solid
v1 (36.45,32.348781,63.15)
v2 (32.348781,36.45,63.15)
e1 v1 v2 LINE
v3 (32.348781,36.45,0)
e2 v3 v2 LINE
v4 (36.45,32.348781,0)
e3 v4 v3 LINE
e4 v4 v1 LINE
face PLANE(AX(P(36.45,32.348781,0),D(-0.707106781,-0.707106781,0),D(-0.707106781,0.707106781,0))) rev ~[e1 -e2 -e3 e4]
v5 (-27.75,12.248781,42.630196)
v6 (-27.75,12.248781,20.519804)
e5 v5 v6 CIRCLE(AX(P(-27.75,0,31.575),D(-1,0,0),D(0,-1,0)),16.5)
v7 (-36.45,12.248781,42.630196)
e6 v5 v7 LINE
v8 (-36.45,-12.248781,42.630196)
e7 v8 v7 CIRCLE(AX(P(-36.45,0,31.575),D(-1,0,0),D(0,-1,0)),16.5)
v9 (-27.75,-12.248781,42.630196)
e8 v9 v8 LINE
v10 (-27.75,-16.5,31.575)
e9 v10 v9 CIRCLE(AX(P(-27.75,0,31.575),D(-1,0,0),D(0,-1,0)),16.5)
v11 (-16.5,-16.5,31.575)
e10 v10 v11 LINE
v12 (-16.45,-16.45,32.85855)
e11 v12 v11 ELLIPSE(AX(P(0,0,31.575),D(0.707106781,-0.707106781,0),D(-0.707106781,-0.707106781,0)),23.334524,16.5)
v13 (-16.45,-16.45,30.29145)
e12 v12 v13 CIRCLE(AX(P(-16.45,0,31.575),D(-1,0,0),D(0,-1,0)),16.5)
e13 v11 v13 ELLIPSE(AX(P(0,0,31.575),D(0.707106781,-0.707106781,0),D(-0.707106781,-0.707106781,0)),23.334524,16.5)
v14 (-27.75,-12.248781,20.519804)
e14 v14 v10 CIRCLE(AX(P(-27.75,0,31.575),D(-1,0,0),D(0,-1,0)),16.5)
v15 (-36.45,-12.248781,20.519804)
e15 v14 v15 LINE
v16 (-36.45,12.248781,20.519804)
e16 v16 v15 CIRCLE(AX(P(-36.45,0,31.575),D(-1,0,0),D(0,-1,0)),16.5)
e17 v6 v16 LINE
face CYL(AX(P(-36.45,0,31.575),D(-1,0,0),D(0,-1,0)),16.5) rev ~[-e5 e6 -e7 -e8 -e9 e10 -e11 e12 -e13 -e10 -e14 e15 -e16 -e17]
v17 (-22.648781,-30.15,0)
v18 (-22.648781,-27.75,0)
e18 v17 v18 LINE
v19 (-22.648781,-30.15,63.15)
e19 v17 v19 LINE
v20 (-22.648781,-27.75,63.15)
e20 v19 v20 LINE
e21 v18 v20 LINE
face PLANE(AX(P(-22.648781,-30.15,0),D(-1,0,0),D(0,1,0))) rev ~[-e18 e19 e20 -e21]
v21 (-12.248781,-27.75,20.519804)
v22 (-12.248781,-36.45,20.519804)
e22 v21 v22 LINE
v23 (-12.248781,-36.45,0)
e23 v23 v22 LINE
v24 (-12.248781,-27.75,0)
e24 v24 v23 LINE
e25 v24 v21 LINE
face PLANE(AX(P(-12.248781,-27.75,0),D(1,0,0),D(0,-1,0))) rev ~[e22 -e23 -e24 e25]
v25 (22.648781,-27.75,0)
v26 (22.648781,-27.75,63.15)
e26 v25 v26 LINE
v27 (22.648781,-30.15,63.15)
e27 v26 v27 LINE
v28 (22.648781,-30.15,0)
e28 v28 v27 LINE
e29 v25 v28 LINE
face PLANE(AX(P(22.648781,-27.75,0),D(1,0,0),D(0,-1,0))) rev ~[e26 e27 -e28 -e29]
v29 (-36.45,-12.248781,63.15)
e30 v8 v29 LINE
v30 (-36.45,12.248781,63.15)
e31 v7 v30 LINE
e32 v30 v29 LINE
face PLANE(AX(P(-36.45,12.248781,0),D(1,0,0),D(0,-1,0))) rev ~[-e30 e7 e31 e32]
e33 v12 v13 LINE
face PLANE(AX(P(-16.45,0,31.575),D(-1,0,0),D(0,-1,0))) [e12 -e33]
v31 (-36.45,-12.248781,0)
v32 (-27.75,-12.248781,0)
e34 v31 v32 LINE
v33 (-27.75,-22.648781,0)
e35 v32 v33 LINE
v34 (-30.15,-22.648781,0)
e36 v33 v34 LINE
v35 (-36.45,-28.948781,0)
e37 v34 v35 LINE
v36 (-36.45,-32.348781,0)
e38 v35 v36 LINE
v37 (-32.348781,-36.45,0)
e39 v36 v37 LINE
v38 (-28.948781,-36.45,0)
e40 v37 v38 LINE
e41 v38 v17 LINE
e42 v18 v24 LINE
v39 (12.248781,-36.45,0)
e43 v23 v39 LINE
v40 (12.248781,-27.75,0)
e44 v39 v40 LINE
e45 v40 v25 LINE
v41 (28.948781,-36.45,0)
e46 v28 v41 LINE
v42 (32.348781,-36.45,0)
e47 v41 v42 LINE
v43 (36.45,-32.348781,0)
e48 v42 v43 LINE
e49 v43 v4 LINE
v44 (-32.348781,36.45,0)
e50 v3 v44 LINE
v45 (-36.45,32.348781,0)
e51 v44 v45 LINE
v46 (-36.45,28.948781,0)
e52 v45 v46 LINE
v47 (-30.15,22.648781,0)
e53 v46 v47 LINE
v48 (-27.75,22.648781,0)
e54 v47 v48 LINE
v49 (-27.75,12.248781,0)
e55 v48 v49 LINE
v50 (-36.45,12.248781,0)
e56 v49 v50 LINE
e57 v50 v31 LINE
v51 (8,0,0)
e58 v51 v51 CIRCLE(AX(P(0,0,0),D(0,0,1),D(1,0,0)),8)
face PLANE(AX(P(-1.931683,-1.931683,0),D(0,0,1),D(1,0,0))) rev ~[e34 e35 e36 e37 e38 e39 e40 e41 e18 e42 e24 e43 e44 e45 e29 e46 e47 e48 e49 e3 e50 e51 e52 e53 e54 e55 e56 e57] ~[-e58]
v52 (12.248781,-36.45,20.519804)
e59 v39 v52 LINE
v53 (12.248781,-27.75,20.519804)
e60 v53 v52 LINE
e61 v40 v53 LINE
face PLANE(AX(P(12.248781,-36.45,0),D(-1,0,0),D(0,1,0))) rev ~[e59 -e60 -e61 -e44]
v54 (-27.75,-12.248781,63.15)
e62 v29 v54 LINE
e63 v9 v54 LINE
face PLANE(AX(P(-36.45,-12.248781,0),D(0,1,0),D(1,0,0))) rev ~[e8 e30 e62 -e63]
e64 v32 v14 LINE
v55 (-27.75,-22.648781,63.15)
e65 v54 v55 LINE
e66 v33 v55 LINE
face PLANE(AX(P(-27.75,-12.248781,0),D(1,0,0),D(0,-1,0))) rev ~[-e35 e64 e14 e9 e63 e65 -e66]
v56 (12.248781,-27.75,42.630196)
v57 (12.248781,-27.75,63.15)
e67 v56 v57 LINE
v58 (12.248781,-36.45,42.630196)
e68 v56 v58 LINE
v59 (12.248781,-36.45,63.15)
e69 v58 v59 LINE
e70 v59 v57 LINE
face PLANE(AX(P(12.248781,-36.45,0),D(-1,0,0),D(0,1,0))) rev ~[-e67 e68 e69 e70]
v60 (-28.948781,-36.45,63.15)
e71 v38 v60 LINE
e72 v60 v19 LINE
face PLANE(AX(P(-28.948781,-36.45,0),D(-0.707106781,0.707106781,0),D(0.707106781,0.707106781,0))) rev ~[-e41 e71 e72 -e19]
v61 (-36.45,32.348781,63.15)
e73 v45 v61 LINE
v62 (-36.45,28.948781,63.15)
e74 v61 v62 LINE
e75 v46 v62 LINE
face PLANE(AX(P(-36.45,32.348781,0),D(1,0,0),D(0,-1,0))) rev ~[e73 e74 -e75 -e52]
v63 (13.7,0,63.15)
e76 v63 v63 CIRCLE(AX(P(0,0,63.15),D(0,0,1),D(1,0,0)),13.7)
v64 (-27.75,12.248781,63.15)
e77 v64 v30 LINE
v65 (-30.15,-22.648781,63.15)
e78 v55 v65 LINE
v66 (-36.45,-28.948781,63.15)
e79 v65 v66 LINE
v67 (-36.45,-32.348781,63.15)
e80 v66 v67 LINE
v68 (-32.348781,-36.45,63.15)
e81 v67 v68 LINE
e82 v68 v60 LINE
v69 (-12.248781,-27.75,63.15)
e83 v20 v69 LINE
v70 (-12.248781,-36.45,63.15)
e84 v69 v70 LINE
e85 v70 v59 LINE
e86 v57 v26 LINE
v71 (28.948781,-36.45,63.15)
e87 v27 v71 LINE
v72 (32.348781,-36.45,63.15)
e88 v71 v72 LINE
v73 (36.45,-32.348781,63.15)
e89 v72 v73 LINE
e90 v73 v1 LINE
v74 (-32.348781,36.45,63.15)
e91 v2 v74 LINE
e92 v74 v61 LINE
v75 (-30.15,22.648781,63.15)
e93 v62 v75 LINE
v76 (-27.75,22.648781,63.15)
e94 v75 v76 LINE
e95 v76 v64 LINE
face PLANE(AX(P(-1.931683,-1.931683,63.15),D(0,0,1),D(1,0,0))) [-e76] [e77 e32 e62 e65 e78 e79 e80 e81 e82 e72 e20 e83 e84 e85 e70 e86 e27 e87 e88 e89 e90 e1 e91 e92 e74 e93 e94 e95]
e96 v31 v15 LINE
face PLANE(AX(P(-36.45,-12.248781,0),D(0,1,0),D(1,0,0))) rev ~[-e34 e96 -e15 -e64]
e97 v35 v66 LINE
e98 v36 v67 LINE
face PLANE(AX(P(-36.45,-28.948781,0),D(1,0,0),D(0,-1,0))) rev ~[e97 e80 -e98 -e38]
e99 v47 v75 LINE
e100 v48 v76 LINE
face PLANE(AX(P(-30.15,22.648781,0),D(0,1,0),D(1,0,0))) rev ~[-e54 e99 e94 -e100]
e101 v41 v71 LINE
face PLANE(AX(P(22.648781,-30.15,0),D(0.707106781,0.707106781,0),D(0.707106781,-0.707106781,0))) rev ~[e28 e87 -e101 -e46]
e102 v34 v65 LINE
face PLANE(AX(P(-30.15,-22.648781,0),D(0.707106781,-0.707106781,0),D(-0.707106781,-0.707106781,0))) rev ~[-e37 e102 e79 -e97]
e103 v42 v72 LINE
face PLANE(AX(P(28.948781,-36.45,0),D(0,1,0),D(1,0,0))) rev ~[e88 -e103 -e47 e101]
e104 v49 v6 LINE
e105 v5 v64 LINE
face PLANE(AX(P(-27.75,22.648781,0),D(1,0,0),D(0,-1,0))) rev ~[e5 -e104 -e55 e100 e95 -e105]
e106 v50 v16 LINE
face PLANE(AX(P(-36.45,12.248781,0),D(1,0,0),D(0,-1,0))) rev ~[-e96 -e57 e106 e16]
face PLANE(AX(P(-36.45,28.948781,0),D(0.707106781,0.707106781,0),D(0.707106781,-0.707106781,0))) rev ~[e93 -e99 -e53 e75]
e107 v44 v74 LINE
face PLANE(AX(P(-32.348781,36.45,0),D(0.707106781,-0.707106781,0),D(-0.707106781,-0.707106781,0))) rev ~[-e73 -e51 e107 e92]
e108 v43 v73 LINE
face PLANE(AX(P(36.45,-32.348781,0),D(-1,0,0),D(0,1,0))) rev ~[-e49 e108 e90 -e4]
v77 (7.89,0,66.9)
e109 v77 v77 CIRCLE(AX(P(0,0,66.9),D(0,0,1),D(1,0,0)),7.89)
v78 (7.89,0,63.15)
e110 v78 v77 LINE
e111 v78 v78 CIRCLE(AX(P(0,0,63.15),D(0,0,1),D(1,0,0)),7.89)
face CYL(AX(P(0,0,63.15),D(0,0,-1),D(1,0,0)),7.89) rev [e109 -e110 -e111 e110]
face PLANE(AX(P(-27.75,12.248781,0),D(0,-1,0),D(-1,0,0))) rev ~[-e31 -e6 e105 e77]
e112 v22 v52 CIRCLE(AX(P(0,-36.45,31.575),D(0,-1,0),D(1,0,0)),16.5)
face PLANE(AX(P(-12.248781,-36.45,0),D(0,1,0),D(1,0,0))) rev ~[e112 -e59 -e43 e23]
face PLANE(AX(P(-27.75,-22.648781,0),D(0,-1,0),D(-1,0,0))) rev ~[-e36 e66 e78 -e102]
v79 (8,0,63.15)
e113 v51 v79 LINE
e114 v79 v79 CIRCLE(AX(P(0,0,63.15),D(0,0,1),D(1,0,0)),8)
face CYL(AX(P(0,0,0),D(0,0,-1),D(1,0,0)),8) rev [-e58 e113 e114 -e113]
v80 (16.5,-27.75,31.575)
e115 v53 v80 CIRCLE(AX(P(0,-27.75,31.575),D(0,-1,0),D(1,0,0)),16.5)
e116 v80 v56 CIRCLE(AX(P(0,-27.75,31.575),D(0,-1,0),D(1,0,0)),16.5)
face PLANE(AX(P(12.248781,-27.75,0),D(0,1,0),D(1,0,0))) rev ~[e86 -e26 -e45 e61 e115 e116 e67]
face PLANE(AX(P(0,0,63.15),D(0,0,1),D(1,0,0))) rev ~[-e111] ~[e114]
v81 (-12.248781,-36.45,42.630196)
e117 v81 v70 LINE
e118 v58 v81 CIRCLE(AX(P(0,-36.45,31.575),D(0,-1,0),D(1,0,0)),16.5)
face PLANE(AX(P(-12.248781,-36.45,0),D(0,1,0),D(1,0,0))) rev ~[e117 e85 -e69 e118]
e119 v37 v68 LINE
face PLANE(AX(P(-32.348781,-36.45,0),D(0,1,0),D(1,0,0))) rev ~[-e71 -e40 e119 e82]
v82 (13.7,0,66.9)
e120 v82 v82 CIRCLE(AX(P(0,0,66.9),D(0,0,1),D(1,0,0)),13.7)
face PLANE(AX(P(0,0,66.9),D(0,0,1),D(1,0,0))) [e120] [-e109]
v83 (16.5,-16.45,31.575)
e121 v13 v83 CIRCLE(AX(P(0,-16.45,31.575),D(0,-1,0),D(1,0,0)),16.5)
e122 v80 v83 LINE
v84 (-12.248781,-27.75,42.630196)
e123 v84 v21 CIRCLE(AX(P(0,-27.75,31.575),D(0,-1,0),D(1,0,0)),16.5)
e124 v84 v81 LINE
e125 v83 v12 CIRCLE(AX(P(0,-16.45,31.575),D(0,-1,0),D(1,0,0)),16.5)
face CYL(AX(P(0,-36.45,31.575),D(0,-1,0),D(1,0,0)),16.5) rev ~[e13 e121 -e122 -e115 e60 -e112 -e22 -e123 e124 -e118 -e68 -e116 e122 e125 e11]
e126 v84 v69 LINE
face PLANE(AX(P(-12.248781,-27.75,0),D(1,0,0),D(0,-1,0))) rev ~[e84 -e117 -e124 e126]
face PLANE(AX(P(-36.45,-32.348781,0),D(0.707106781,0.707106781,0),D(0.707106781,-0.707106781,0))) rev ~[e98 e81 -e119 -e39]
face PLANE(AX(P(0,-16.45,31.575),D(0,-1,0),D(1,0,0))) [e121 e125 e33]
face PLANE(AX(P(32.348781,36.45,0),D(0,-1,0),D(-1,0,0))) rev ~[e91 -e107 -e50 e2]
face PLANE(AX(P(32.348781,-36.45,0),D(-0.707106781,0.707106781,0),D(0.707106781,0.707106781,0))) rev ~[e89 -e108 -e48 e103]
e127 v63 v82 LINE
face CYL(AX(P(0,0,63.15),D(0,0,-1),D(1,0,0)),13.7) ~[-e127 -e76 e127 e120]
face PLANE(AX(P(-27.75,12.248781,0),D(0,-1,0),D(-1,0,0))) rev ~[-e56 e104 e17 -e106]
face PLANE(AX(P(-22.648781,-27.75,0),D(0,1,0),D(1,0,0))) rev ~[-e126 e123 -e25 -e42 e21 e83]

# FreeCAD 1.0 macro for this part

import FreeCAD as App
import Part
import Sketcher
Q = App.Units.Quantity

doc = App.newDocument("Part")
body = doc.addObject("PartDesign::Body", "Body")

sketch1 = body.newObject("Sketcher::SketchObject", "Sketch")
sketch1.AttachmentSupport = (doc.getObject("XY_Plane"), [""])
sketch1.MapMode = "FlatFace"
sketch1.addGeometry([
    Part.LineSegment(App.Vector(32.3, 36.5, 0), App.Vector(-32.3, 36.5, 0)),
    Part.LineSegment(App.Vector(-32.3, 36.5, 0), App.Vector(-36.5, 32.3, 0)),
    Part.LineSegment(App.Vector(-36.5, 32.3, 0), App.Vector(-36.5, 28.9, 0)),
    Part.LineSegment(App.Vector(-36.5, 28.9, 0), App.Vector(-30.1, 22.6, 0)),
    Part.LineSegment(App.Vector(-30.1, 22.6, 0), App.Vector(-27.8, 22.6, 0)),
    Part.LineSegment(App.Vector(-27.8, 22.6, 0), App.Vector(-27.8, 12.2, 0)),
    Part.LineSegment(App.Vector(-27.8, 12.2, 0), App.Vector(-36.5, 12.2, 0)),
    Part.LineSegment(App.Vector(-36.5, 12.2, 0), App.Vector(-36.5, -12.2, 0)),
    Part.LineSegment(App.Vector(-36.5, -12.2, 0), App.Vector(-27.8, -12.2, 0)),
    Part.LineSegment(App.Vector(-27.8, -12.2, 0), App.Vector(-27.8, -22.6, 0)),
    Part.LineSegment(App.Vector(-27.8, -22.6, 0), App.Vector(-30.1, -22.6, 0)),
    Part.LineSegment(App.Vector(-30.1, -22.6, 0), App.Vector(-36.5, -28.9, 0)),
    Part.LineSegment(App.Vector(-36.5, -28.9, 0), App.Vector(-36.5, -32.3, 0)),
    Part.LineSegment(App.Vector(-36.5, -32.3, 0), App.Vector(-32.3, -36.5, 0)),
    Part.LineSegment(App.Vector(-32.3, -36.5, 0), App.Vector(-28.9, -36.5, 0)),
    Part.LineSegment(App.Vector(-28.9, -36.5, 0), App.Vector(-22.6, -30.1, 0)),
    Part.LineSegment(App.Vector(-22.6, -30.1, 0), App.Vector(-22.6, -27.8, 0)),
    Part.LineSegment(App.Vector(-22.6, -27.8, 0), App.Vector(-12.2, -27.8, 0)),
    Part.LineSegment(App.Vector(-12.2, -27.8, 0), App.Vector(-12.2, -36.5, 0)),
    Part.LineSegment(App.Vector(-12.2, -36.5, 0), App.Vector(12.2, -36.5, 0)),
    Part.LineSegment(App.Vector(12.2, -36.5, 0), App.Vector(12.2, -27.8, 0)),
    Part.LineSegment(App.Vector(12.2, -27.8, 0), App.Vector(22.6, -27.8, 0)),
    Part.LineSegment(App.Vector(22.6, -27.8, 0), App.Vector(22.6, -30.1, 0)),
    Part.LineSegment(App.Vector(22.6, -30.1, 0), App.Vector(28.9, -36.5, 0)),
    Part.LineSegment(App.Vector(28.9, -36.5, 0), App.Vector(32.3, -36.5, 0)),
    Part.LineSegment(App.Vector(32.3, -36.5, 0), App.Vector(36.5, -32.3, 0)),
    Part.LineSegment(App.Vector(36.5, -32.3, 0), App.Vector(36.5, 32.3, 0)),
    Part.LineSegment(App.Vector(36.5, 32.3, 0), App.Vector(32.3, 36.5, 0)),
    Part.Circle(App.Vector(0, 0, 0), App.Vector(0, 0, 1), 8),
], False)
sketch1.addConstraint([
    Sketcher.Constraint("Coincident", 0, 2, 1, 1),
    Sketcher.Constraint("Coincident", 1, 2, 2, 1),
    Sketcher.Constraint("Coincident", 2, 2, 3, 1),
    Sketcher.Constraint("Coincident", 3, 2, 4, 1),
    Sketcher.Constraint("Coincident", 4, 2, 5, 1),
    Sketcher.Constraint("Coincident", 5, 2, 6, 1),
    Sketcher.Constraint("Coincident", 6, 2, 7, 1),
    Sketcher.Constraint("Coincident", 7, 2, 8, 1),
    Sketcher.Constraint("Coincident", 8, 2, 9, 1),
    Sketcher.Constraint("Coincident", 9, 2, 10, 1),
    Sketcher.Constraint("Coincident", 10, 2, 11, 1),
    Sketcher.Constraint("Coincident", 11, 2, 12, 1),
    Sketcher.Constraint("Coincident", 12, 2, 13, 1),
    Sketcher.Constraint("Coincident", 13, 2, 14, 1),
    Sketcher.Constraint("Coincident", 14, 2, 15, 1),
    Sketcher.Constraint("Coincident", 15, 2, 16, 1),
    Sketcher.Constraint("Coincident", 16, 2, 17, 1),
    Sketcher.Constraint("Coincident", 17, 2, 18, 1),
    Sketcher.Constraint("Coincident", 18, 2, 19, 1),
    Sketcher.Constraint("Coincident", 19, 2, 20, 1),
    Sketcher.Constraint("Coincident", 20, 2, 21, 1),
    Sketcher.Constraint("Coincident", 21, 2, 22, 1),
    Sketcher.Constraint("Coincident", 22, 2, 23, 1),
    Sketcher.Constraint("Coincident", 23, 2, 24, 1),
    Sketcher.Constraint("Coincident", 24, 2, 25, 1),
    Sketcher.Constraint("Coincident", 25, 2, 26, 1),
    Sketcher.Constraint("Coincident", 26, 2, 27, 1),
    Sketcher.Constraint("Coincident", 27, 2, 0, 1),
    Sketcher.Constraint("Horizontal", 0),
    Sketcher.Constraint("Vertical", 2),
    Sketcher.Constraint("Horizontal", 4),
    Sketcher.Constraint("Vertical", 5),
    Sketcher.Constraint("Horizontal", 6),
    Sketcher.Constraint("Vertical", 7),
    Sketcher.Constraint("Horizontal", 8),
    Sketcher.Constraint("Vertical", 9),
    Sketcher.Constraint("Horizontal", 10),
    Sketcher.Constraint("Vertical", 12),
    Sketcher.Constraint("Horizontal", 14),
    Sketcher.Constraint("Vertical", 16),
    Sketcher.Constraint("Horizontal", 17),
    Sketcher.Constraint("Vertical", 18),
    Sketcher.Constraint("Horizontal", 19),
    Sketcher.Constraint("Vertical", 20),
    Sketcher.Constraint("Horizontal", 21),
    Sketcher.Constraint("Vertical", 22),
    Sketcher.Constraint("Horizontal", 24),
    Sketcher.Constraint("Vertical", 26),
    Sketcher.Constraint("Coincident", 28, 3, -1, 1),
    Sketcher.Constraint("Symmetric", 0, 2, 24, 2, -1, 1),
    Sketcher.Constraint("Symmetric", 1, 2, 25, 2, -1, 1),
    Sketcher.Constraint("Symmetric", 12, 2, 26, 2, -1, 1),
    Sketcher.Constraint("Symmetric", 13, 2, 27, 2, -1, 1),
    Sketcher.Constraint("Symmetric", 17, 2, 20, 2, -2),
    Sketcher.Constraint("Symmetric", 15, 2, 22, 2, -2),
    Sketcher.Constraint("Symmetric", 5, 2, 8, 2, -1),
    Sketcher.Constraint("Symmetric", 3, 2, 10, 2, -1),
    Sketcher.Constraint("Perpendicular", 1, 3),
    Sketcher.Constraint("Perpendicular", 3, 11),
    Sketcher.Constraint("Perpendicular", 11, 13),
    Sketcher.Constraint("Perpendicular", 13, 15),
    Sketcher.Constraint("Perpendicular", 15, 23),
    Sketcher.Constraint("Horizontal", 14, 2, 18, 2),
    Sketcher.Constraint("Horizontal", 12, 2, 25, 2),
    Sketcher.Constraint("Vertical", 2, 2, 6, 2),
    Sketcher.Constraint("Vertical", 0, 2, 13, 2),
    Sketcher.Constraint("Equal", 24, 2),
    Sketcher.Constraint("Equal", 21, 5),
    Sketcher.Constraint("Equal", 19, 7),
    Sketcher.Constraint("Equal", 10, 16),
    Sketcher.Constraint("Equal", 8, 18),
    Sketcher.Constraint("Diameter", 28, Q("16 mm")),
    Sketcher.Constraint("DistanceX", 4, 1, 4, 2, Q("2.4 mm")),
    Sketcher.Constraint("DistanceX", 6, 2, 6, 1, Q("8.7 mm")),
    Sketcher.Constraint("DistanceX", 14, 1, 14, 2, Q("3.4 mm")),
    Sketcher.Constraint("DistanceX", 17, 1, 17, 2, Q("10.4 mm")),
    Sketcher.Constraint("Distance", 1, Q("5.8 mm")),
    Sketcher.Constraint("DistanceY", -1, 1, 0, 2, Q("36.45 mm")),
])
pad1 = body.newObject("PartDesign::Pad", "Pad")
pad1.Profile = sketch1
pad1.Length = 63.15

sketch2 = body.newObject("Sketcher::SketchObject", "Sketch001")
sketch2.AttachmentSupport = (doc.getObject("XZ_Plane"), [""])
sketch2.MapMode = "FlatFace"
sketch2.AttachmentOffset = App.Placement(App.Vector(0, 0, 36.45), App.Rotation())
sketch2.addGeometry(Part.Circle(App.Vector(0, 32, 0), App.Vector(0, 0, 1), 16), False)
sketch2.addConstraint([
    Sketcher.Constraint("PointOnObject", 0, 3, -2),
    Sketcher.Constraint("Diameter", 0, Q("33 mm")),
    Sketcher.Constraint("DistanceY", -1, 1, 0, 3, Q("31.575 mm")),
])
pocket1 = body.newObject("PartDesign::Pocket", "Pocket")
pocket1.Profile = sketch2
pocket1.Length = 20

sketch3 = body.newObject("Sketcher::SketchObject", "Sketch002")
sketch3.AttachmentSupport = (doc.getObject("YZ_Plane"), [""])
sketch3.MapMode = "FlatFace"
sketch3.AttachmentOffset = App.Placement(App.Vector(0, 0, -36.45), App.Rotation())
sketch3.addGeometry(Part.Circle(App.Vector(0, 32, 0), App.Vector(0, 0, 1), 16), False)
sketch3.addConstraint([
    Sketcher.Constraint("PointOnObject", 0, 3, -2),
    Sketcher.Constraint("Diameter", 0, Q("33 mm")),
    Sketcher.Constraint("DistanceY", -1, 1, 0, 3, Q("31.575 mm")),
])
pocket2 = body.newObject("PartDesign::Pocket", "Pocket001")
pocket2.Profile = sketch3
pocket2.Length = 20
pocket2.Reversed = True

sketch4 = body.newObject("Sketcher::SketchObject", "Sketch003")
sketch4.AttachmentSupport = (doc.getObject("XY_Plane"), [""])
sketch4.MapMode = "FlatFace"
sketch4.AttachmentOffset = App.Placement(App.Vector(0, 0, 63.15), App.Rotation())
sketch4.addGeometry([
    Part.Circle(App.Vector(0, 0, 0), App.Vector(0, 0, 1), 14),
    Part.Circle(App.Vector(0, 0, 0), App.Vector(0, 0, 1), 8),
], False)
sketch4.addConstraint([
    Sketcher.Constraint("Coincident", 0, 3, -1, 1),
    Sketcher.Constraint("Coincident", 1, 3, -1, 1),
    Sketcher.Constraint("Diameter", 0, Q("27.4 mm")),
    Sketcher.Constraint("Diameter", 1, Q("15.78 mm")),
])
pad2 = body.newObject("PartDesign::Pad", "Pad001")
pad2.Profile = sketch4
pad2.Length = 3.75

doc.recompute()
